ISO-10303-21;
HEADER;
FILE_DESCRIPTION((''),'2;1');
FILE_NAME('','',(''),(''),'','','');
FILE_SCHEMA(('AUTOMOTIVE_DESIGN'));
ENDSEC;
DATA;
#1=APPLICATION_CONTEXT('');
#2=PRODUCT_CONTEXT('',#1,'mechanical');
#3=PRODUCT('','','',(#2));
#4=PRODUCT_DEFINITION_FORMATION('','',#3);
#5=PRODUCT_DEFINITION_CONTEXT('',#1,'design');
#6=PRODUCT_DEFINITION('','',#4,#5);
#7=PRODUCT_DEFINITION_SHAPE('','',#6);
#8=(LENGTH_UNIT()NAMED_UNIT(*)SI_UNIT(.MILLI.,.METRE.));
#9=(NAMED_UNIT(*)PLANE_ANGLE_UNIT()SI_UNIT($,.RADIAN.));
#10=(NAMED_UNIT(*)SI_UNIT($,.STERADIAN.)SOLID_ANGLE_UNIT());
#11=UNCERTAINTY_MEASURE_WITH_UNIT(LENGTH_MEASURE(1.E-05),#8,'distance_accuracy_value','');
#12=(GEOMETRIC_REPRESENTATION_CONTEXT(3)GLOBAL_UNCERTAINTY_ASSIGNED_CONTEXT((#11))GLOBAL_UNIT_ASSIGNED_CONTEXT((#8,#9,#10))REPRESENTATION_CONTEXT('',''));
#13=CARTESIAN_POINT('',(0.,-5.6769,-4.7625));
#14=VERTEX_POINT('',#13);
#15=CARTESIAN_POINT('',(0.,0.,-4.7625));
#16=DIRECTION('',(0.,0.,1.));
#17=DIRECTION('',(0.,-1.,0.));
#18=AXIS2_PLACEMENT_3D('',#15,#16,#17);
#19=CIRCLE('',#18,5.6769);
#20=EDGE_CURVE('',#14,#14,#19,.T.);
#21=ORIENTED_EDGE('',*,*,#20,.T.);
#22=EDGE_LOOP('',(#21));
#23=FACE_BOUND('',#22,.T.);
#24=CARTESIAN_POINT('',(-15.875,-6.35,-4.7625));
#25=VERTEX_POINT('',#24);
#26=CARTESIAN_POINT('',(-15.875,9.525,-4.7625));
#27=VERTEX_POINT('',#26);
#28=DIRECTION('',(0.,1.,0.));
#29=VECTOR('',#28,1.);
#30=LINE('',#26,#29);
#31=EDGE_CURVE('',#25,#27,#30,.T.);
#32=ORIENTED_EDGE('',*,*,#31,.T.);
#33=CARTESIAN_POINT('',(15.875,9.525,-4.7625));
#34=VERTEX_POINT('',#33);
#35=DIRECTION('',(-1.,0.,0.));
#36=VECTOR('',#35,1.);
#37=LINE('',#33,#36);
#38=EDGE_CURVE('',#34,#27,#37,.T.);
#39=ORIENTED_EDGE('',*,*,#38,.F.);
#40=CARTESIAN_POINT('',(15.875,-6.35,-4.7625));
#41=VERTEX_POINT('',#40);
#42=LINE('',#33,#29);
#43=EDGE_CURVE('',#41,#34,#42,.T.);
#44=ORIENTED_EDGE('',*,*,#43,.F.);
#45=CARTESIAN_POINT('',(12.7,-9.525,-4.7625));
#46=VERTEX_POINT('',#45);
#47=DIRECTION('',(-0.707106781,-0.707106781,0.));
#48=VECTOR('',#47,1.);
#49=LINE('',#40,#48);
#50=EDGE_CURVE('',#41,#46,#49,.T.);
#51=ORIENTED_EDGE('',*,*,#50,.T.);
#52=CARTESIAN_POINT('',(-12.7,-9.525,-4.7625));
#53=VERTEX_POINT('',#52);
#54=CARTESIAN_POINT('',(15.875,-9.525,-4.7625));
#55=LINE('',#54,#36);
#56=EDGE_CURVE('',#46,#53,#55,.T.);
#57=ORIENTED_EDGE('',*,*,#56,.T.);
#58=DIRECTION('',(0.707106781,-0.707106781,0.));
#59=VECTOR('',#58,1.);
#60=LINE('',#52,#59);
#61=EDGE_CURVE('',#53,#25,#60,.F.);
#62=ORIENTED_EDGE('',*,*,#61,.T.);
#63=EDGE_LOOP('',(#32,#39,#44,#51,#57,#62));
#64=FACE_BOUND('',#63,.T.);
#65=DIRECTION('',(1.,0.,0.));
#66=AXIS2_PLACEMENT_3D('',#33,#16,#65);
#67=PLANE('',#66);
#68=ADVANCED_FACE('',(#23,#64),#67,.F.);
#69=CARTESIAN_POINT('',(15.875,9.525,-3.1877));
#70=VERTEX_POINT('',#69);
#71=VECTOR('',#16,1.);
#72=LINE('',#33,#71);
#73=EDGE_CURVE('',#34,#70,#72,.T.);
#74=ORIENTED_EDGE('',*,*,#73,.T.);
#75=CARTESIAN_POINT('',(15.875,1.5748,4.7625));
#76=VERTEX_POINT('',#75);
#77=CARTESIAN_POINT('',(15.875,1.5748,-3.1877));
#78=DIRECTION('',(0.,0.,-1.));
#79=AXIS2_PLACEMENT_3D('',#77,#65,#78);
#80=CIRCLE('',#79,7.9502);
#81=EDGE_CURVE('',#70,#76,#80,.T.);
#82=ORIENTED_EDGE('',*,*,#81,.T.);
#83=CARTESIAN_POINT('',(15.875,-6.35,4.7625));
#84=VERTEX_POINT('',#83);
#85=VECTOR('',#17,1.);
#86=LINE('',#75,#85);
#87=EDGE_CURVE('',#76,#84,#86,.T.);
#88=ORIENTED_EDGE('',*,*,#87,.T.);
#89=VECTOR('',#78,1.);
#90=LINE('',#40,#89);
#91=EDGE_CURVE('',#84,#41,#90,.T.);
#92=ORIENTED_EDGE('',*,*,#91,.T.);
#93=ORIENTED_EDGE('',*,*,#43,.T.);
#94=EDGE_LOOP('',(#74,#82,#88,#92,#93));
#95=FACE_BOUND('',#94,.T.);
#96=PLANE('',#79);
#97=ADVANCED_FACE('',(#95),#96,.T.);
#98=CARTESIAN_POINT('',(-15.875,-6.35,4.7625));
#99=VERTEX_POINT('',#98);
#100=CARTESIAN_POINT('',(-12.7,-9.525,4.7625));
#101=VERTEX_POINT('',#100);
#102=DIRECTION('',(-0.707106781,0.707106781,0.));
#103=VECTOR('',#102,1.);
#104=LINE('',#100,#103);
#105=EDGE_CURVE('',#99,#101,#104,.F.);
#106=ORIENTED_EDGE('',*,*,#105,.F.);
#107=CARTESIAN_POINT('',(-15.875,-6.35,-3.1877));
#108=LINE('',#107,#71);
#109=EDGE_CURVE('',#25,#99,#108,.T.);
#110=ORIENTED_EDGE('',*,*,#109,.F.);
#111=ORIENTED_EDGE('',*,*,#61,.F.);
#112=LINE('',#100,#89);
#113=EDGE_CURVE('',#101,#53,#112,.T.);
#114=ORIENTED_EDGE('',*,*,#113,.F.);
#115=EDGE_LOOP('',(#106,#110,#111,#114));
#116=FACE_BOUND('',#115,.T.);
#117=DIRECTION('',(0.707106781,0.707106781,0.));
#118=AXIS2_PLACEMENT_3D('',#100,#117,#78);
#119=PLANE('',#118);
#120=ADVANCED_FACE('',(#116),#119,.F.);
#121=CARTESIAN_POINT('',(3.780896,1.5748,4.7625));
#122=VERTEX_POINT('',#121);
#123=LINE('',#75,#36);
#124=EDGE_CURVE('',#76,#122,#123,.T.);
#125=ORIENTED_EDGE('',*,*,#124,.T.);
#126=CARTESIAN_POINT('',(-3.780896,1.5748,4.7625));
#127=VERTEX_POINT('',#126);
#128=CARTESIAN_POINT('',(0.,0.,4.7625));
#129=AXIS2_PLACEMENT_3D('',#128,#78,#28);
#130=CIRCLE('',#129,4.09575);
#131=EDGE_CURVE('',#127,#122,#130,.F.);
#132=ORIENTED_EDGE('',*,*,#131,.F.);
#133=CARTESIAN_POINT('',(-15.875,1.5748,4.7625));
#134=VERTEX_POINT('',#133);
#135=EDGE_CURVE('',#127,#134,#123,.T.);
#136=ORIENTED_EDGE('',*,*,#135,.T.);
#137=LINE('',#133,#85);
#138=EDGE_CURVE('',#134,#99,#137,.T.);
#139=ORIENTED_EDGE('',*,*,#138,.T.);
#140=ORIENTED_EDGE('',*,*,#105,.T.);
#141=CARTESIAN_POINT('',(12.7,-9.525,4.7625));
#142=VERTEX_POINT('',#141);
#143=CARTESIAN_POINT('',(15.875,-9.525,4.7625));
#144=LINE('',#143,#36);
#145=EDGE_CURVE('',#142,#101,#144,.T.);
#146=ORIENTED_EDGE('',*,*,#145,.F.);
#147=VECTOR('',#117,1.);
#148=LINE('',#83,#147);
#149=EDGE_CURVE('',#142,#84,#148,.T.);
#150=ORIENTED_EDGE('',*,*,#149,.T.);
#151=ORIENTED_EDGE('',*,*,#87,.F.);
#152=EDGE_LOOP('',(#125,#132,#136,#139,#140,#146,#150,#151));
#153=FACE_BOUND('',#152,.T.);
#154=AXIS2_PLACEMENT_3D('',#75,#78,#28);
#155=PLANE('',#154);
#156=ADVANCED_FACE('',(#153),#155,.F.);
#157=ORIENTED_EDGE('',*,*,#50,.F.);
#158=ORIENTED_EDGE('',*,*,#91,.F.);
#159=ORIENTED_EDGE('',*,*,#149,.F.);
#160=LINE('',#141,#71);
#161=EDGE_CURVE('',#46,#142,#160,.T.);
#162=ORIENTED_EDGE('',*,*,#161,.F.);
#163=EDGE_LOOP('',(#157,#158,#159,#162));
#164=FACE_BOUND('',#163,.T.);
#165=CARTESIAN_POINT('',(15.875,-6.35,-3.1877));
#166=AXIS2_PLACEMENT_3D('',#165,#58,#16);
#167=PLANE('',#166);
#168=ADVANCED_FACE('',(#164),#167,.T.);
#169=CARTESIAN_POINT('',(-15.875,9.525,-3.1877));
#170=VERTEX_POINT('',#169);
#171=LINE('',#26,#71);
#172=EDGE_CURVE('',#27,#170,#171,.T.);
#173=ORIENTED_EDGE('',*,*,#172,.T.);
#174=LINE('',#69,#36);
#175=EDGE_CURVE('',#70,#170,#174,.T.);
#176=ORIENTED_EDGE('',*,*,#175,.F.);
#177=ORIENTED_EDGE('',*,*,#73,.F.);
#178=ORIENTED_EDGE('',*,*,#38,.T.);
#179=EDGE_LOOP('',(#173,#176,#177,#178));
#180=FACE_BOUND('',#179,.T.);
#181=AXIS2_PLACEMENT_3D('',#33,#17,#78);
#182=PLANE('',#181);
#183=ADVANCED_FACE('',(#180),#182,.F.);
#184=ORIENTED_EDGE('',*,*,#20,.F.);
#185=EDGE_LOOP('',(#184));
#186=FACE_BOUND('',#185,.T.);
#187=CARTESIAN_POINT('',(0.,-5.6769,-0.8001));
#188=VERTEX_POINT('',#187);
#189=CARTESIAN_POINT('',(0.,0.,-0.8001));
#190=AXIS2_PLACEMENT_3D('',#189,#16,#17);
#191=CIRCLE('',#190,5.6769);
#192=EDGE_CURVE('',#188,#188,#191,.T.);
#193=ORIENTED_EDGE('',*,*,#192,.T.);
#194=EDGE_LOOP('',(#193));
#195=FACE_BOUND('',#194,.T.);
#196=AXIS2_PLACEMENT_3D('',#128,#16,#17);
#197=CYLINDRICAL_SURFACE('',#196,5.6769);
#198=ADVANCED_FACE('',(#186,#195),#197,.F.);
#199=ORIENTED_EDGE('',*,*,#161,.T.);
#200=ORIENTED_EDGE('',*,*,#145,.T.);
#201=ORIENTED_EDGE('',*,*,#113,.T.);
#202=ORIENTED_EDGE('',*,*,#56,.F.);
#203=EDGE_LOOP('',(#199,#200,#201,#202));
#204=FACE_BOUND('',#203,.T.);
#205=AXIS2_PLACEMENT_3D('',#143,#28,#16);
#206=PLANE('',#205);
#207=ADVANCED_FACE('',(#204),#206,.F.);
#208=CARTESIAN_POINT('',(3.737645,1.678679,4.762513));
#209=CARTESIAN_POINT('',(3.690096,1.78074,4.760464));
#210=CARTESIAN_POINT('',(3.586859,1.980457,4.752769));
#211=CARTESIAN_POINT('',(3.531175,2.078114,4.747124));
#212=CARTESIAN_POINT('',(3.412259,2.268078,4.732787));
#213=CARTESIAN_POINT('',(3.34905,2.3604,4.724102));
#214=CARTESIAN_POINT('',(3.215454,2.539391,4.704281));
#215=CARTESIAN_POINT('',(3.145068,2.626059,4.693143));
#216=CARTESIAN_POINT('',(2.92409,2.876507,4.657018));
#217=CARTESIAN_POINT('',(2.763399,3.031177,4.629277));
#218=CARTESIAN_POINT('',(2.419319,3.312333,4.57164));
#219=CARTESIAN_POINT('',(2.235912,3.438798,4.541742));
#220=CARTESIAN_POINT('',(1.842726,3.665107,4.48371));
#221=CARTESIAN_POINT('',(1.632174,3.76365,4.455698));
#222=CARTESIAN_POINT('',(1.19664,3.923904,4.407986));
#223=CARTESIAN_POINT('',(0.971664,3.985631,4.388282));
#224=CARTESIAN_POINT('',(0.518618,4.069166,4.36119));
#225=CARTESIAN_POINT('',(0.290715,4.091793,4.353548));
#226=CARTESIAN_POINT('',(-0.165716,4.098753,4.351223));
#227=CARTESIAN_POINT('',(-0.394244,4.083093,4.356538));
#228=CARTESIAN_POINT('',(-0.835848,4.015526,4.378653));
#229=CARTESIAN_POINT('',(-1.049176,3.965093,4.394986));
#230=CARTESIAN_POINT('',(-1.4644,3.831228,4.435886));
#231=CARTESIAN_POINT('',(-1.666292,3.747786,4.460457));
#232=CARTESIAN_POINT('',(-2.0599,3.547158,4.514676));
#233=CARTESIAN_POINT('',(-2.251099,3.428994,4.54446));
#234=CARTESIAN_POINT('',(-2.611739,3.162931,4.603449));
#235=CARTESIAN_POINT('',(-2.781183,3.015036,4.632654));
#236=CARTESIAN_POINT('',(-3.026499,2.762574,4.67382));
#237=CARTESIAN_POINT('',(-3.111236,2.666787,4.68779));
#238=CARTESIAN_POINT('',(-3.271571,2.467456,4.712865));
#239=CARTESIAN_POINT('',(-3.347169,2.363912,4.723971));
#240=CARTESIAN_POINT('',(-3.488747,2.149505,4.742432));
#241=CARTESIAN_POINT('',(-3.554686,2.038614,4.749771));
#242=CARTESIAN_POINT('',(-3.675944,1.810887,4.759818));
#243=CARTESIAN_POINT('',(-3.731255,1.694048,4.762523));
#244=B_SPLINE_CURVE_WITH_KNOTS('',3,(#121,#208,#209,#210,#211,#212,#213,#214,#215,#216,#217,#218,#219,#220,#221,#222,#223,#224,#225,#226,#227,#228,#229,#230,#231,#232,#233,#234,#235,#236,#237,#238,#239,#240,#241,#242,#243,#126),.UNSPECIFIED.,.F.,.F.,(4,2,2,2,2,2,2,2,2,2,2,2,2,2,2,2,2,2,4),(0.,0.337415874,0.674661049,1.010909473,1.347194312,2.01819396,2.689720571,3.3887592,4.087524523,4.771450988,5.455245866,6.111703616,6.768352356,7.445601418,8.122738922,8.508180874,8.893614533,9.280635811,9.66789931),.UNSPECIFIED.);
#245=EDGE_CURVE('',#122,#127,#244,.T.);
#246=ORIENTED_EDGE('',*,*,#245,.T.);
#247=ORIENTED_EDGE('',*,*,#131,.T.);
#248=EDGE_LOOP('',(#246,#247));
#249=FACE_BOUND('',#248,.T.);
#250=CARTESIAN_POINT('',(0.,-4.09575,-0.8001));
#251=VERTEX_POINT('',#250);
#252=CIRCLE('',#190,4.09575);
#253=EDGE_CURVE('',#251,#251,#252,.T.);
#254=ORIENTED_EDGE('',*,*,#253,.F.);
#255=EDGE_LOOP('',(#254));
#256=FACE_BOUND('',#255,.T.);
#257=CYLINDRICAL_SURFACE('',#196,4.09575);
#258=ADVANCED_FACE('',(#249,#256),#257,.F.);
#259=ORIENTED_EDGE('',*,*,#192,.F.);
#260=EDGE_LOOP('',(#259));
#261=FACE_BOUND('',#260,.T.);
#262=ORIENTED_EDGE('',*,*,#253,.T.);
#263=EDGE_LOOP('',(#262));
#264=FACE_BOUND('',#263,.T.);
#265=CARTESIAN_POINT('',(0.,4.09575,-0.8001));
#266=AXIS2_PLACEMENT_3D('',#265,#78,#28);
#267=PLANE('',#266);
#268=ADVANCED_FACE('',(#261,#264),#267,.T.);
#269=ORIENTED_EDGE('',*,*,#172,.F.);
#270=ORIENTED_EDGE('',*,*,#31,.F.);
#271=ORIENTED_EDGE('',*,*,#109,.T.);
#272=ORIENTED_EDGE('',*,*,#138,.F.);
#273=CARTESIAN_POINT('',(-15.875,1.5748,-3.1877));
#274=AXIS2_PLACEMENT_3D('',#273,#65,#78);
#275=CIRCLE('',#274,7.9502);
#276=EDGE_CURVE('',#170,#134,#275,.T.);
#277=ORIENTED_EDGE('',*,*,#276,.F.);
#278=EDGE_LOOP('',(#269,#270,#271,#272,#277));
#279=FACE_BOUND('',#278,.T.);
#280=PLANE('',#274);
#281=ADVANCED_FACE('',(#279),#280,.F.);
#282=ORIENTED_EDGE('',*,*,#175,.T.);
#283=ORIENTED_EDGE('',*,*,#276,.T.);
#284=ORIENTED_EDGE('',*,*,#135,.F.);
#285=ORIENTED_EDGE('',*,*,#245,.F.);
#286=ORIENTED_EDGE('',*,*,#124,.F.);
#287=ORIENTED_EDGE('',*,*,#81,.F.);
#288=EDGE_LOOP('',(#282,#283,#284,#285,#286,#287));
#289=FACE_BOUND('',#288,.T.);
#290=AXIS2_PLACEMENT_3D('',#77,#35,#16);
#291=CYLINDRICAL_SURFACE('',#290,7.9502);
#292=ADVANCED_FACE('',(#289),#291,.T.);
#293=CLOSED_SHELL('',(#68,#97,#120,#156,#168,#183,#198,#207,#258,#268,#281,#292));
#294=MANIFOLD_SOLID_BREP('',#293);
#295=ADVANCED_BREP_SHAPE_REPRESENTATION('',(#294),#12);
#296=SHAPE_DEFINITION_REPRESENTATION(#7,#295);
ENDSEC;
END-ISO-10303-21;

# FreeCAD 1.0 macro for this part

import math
import FreeCAD as App
import Part
import Sketcher

V = App.Vector
Q = App.Units.Quantity


def edges_at(feature, points):
    """Names of the edges that pass closest to the given points."""
    edges = feature.Shape.Edges
    near = lambda p: min(range(len(edges)), key=lambda i: edges[i].distToShape(Part.Vertex(*p))[0])
    return sorted({f"Edge{near(p) + 1}" for p in points})

doc = App.newDocument("Part")
body = doc.addObject("PartDesign::Body", "Body")

# Sketch on YZ plane
sketch1 = body.newObject("Sketcher::SketchObject", "Sketch")
sketch1.AttachmentSupport = (doc.getObject("YZ_Plane"), [""])
sketch1.MapMode = "FlatFace"
sketch1.addGeometry([
    Part.ArcOfCircle(Part.Circle(V(1.6, -3.2, 0), V(0, 0, 1), 8), math.radians(0), math.radians(90)),  # 0
    Part.LineSegment(V(1.6, 4.8, 0), V(-9.5, 4.8, 0)),  # 1
    Part.LineSegment(V(-9.5, 4.8, 0), V(-9.5, -4.8, 0)),  # 2
    Part.LineSegment(V(-9.5, -4.8, 0), V(9.5, -4.8, 0)),  # 3
    Part.LineSegment(V(9.5, -4.8, 0), V(9.5, -3.2, 0)),  # 4
], False)
sketch1.addConstraint([
    Sketcher.Constraint("Tangent", 0, 2, 1, 1),
    Sketcher.Constraint("Coincident", 1, 2, 2, 1),
    Sketcher.Constraint("Coincident", 2, 2, 3, 1),
    Sketcher.Constraint("Coincident", 3, 2, 4, 1),
    Sketcher.Constraint("Tangent", 4, 2, 0, 1),
    Sketcher.Constraint("Horizontal", 1),
    Sketcher.Constraint("Vertical", 2),
    Sketcher.Constraint("Horizontal", 3),
    Sketcher.Constraint("Vertical", 4),
    Sketcher.Constraint("Symmetric", 1, 2, 3, 2, -1, 1),
    Sketcher.Constraint("Radius", 0, Q("0.313 in")),
    Sketcher.Constraint("DistanceX", 3, 1, 3, 2, Q("0.75 in")),
    Sketcher.Constraint("DistanceY", 2, 2, 2, 1, Q("0.375 in")),
])
pad1 = body.newObject("PartDesign::Pad", "Pad")
pad1.Profile = sketch1
pad1.Length = Q("1.25 in")
pad1.Midplane = True
doc.recompute()

chamfer = body.newObject("PartDesign::Chamfer", "Chamfer")
chamfer.Base = (pad1, edges_at(pad1, [(15.875, -9.525, 0), (-15.875, -9.525, 0)]))
chamfer.Size = Q("0.125 in")

# Sketch on YZ plane
sketch2 = body.newObject("Sketcher::SketchObject", "Sketch001")
sketch2.AttachmentSupport = (doc.getObject("YZ_Plane"), [""])
sketch2.MapMode = "FlatFace"
sketch2.addGeometry([
    Part.LineSegment(V(4.1, -0.8, 0), V(4.1, 4.8, 0)),  # 0
    Part.LineSegment(V(4.1, 4.8, 0), V(0, 4.8, 0)),  # 1
    Part.LineSegment(V(0, 4.8, 0), V(0, -4.8, 0)),  # 2
    Part.LineSegment(V(0, -4.8, 0), V(5.7, -4.8, 0)),  # 3
    Part.LineSegment(V(5.7, -4.8, 0), V(5.7, -0.8, 0)),  # 4
    Part.LineSegment(V(5.7, -0.8, 0), V(4.1, -0.8, 0)),  # 5
], False)
sketch2.addConstraint([
    Sketcher.Constraint("Coincident", 0, 2, 1, 1),
    Sketcher.Constraint("Coincident", 1, 2, 2, 1),
    Sketcher.Constraint("Coincident", 2, 2, 3, 1),
    Sketcher.Constraint("Coincident", 3, 2, 4, 1),
    Sketcher.Constraint("Coincident", 4, 2, 5, 1),
    Sketcher.Constraint("Coincident", 5, 2, 0, 1),
    Sketcher.Constraint("Vertical", 0),
    Sketcher.Constraint("Horizontal", 1),
    Sketcher.Constraint("Vertical", 2),
    Sketcher.Constraint("Horizontal", 3),
    Sketcher.Constraint("Vertical", 4),
    Sketcher.Constraint("Horizontal", 5),
    Sketcher.Constraint("Symmetric", 1, 2, 2, 2, -1, 1),
    Sketcher.Constraint("DistanceY", 0, 1, 0, 2, Q("0.219 in")),
    Sketcher.Constraint("DistanceY", 2, 2, 2, 1, Q("0.375 in")),
    Sketcher.Constraint("DistanceX", 3, 1, 3, 2, Q("0.2235 in")),
    Sketcher.Constraint("DistanceX", 1, 2, 1, 1, Q("4.09575 mm")),
])
groove = body.newObject("PartDesign::Groove", "Groove")
groove.Profile = sketch2
groove.ReferenceAxis = (sketch2, ["V_Axis"])
groove.Angle = 360

doc.recompute()
